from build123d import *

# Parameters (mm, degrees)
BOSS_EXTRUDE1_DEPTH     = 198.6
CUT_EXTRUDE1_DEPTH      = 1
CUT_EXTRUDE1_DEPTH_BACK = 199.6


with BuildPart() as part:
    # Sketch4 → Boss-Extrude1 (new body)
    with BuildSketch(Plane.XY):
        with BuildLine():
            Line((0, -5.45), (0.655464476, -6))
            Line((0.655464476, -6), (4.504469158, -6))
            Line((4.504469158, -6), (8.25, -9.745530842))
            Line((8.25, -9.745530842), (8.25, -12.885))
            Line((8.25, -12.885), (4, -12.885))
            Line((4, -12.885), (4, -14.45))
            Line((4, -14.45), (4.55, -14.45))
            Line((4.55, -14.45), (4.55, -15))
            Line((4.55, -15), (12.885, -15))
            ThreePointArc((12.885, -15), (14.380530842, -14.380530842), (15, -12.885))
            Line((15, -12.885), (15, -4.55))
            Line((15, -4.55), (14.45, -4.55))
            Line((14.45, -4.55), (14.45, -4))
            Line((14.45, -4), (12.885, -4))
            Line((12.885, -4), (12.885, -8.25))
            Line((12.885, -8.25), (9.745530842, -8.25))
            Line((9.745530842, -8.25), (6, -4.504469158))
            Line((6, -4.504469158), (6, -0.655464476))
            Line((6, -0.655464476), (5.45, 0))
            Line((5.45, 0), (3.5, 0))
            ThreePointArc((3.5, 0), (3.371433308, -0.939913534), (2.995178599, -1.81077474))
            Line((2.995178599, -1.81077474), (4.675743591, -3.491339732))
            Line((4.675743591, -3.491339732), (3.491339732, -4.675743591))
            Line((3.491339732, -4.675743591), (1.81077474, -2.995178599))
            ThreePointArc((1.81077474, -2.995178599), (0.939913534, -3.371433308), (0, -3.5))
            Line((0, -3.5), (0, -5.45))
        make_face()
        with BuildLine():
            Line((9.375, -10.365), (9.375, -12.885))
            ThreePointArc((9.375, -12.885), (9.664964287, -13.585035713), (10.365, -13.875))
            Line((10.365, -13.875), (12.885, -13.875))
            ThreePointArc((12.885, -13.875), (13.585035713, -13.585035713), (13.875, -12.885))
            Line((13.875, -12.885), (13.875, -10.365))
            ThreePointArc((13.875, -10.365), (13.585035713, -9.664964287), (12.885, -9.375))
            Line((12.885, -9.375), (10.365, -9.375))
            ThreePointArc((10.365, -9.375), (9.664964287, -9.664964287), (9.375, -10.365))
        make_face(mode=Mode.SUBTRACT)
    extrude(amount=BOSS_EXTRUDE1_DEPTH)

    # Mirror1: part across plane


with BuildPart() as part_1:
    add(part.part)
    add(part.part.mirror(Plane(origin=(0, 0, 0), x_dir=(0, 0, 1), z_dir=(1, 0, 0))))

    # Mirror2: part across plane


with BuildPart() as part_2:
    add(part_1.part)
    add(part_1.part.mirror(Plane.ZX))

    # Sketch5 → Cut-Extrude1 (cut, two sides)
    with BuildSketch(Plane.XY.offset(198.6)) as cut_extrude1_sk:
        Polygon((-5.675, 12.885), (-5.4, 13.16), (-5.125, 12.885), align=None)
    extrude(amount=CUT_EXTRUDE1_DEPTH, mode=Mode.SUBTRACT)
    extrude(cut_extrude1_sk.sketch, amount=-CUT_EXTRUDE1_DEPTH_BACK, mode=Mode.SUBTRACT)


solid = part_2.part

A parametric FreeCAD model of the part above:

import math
import FreeCAD as App
import Part
import Sketcher
Q = App.Units.Quantity

doc = App.newDocument("Part")
body = doc.addObject("PartDesign::Body", "Body")

# Sketch on XY plane
sketch1 = body.newObject("Sketcher::SketchObject", "Sketch")
sketch1.AttachmentSupport = (doc.getObject("XY_Plane"), [""])
sketch1.MapMode = "FlatFace"
sketch1.addGeometry([
    Part.LineSegment(App.Vector(0, -5.5, 0), App.Vector(0.7, -6, 0)),  # 0
    Part.LineSegment(App.Vector(0.7, -6, 0), App.Vector(4.5, -6, 0)),  # 1
    Part.LineSegment(App.Vector(4.5, -6, 0), App.Vector(8.2, -9.7, 0)),  # 2
    Part.LineSegment(App.Vector(8.2, -9.7, 0), App.Vector(8.2, -12.9, 0)),  # 3
    Part.LineSegment(App.Vector(8.2, -12.9, 0), App.Vector(4, -12.9, 0)),  # 4
    Part.LineSegment(App.Vector(4, -12.9, 0), App.Vector(4, -14.4, 0)),  # 5
    Part.LineSegment(App.Vector(4, -14.4, 0), App.Vector(4.5, -14.4, 0)),  # 6
    Part.LineSegment(App.Vector(4.5, -14.4, 0), App.Vector(4.5, -15, 0)),  # 7
    Part.LineSegment(App.Vector(4.5, -15, 0), App.Vector(12.9, -15, 0)),  # 8
    Part.ArcOfCircle(Part.Circle(App.Vector(12.9, -12.9, 0), App.Vector(0, 0, 1), 2.1), math.radians(-90), math.radians(0)),  # 9
    Part.LineSegment(App.Vector(15, -12.9, 0), App.Vector(15, -4.5, 0)),  # 10
    Part.LineSegment(App.Vector(15, -4.5, 0), App.Vector(14.4, -4.5, 0)),  # 11
    Part.LineSegment(App.Vector(14.4, -4.5, 0), App.Vector(14.4, -4, 0)),  # 12
    Part.LineSegment(App.Vector(14.4, -4, 0), App.Vector(12.9, -4, 0)),  # 13
    Part.LineSegment(App.Vector(12.9, -4, 0), App.Vector(12.9, -8.2, 0)),  # 14
    Part.LineSegment(App.Vector(12.9, -8.2, 0), App.Vector(9.7, -8.2, 0)),  # 15
    Part.LineSegment(App.Vector(9.7, -8.2, 0), App.Vector(6, -4.5, 0)),  # 16
    Part.LineSegment(App.Vector(6, -4.5, 0), App.Vector(6, -0.7, 0)),  # 17
    Part.LineSegment(App.Vector(6, -0.7, 0), App.Vector(5.5, 0, 0)),  # 18
    Part.LineSegment(App.Vector(5.5, 0, 0), App.Vector(3.5, 0, 0)),  # 19
    Part.ArcOfCircle(Part.Circle(App.Vector(0, 0, 0), App.Vector(0, 0, 1), 3.5), math.radians(-31), math.radians(0)),  # 20
    Part.LineSegment(App.Vector(3, -1.8, 0), App.Vector(4.7, -3.5, 0)),  # 21
    Part.LineSegment(App.Vector(4.7, -3.5, 0), App.Vector(3.5, -4.7, 0)),  # 22
    Part.LineSegment(App.Vector(3.5, -4.7, 0), App.Vector(1.8, -3, 0)),  # 23
    Part.ArcOfCircle(Part.Circle(App.Vector(0, 0, 0), App.Vector(0, 0, 1), 3.5), math.radians(-90), math.radians(-59)),  # 24
    Part.LineSegment(App.Vector(0, -3.5, 0), App.Vector(0, -5.5, 0)),  # 25
    Part.LineSegment(App.Vector(9.4, -12.9, 0), App.Vector(9.4, -10.4, 0)),  # 26
    Part.ArcOfCircle(Part.Circle(App.Vector(10.4, -10.4, 0), App.Vector(0, 0, 1), 1), math.radians(90), math.radians(180)),  # 27
    Part.LineSegment(App.Vector(10.4, -9.4, 0), App.Vector(12.9, -9.4, 0)),  # 28
    Part.ArcOfCircle(Part.Circle(App.Vector(12.9, -10.4, 0), App.Vector(0, 0, 1), 1), math.radians(0), math.radians(90)),  # 29
    Part.LineSegment(App.Vector(13.9, -10.4, 0), App.Vector(13.9, -12.9, 0)),  # 30
    Part.ArcOfCircle(Part.Circle(App.Vector(12.9, -12.9, 0), App.Vector(0, 0, 1), 1), math.radians(-90), math.radians(0)),  # 31
    Part.LineSegment(App.Vector(12.9, -13.9, 0), App.Vector(10.4, -13.9, 0)),  # 32
    Part.ArcOfCircle(Part.Circle(App.Vector(10.4, -12.9, 0), App.Vector(0, 0, 1), 1), math.radians(-180), math.radians(-90)),  # 33
], False)
sketch1.addConstraint([
    Sketcher.Constraint("Coincident", 0, 2, 1, 1),
    Sketcher.Constraint("Coincident", 1, 2, 2, 1),
    Sketcher.Constraint("Coincident", 2, 2, 3, 1),
    Sketcher.Constraint("Coincident", 3, 2, 4, 1),
    Sketcher.Constraint("Coincident", 4, 2, 5, 1),
    Sketcher.Constraint("Coincident", 5, 2, 6, 1),
    Sketcher.Constraint("Coincident", 6, 2, 7, 1),
    Sketcher.Constraint("Coincident", 7, 2, 8, 1),
    Sketcher.Constraint("Tangent", 8, 2, 9, 1),
    Sketcher.Constraint("Tangent", 9, 2, 10, 1),
    Sketcher.Constraint("Coincident", 10, 2, 11, 1),
    Sketcher.Constraint("Coincident", 11, 2, 12, 1),
    Sketcher.Constraint("Coincident", 12, 2, 13, 1),
    Sketcher.Constraint("Coincident", 13, 2, 14, 1),
    Sketcher.Constraint("Coincident", 14, 2, 15, 1),
    Sketcher.Constraint("Coincident", 15, 2, 16, 1),
    Sketcher.Constraint("Coincident", 16, 2, 17, 1),
    Sketcher.Constraint("Coincident", 17, 2, 18, 1),
    Sketcher.Constraint("Coincident", 18, 2, 19, 1),
    Sketcher.Constraint("Coincident", 19, 2, 20, 2),
    Sketcher.Constraint("Coincident", 20, 1, 21, 1),
    Sketcher.Constraint("Coincident", 21, 2, 22, 1),
    Sketcher.Constraint("Coincident", 22, 2, 23, 1),
    Sketcher.Constraint("Coincident", 23, 2, 24, 2),
    Sketcher.Constraint("Coincident", 24, 1, 25, 1),
    Sketcher.Constraint("Coincident", 25, 2, 0, 1),
    Sketcher.Constraint("Tangent", 26, 2, 27, 2),
    Sketcher.Constraint("Tangent", 27, 1, 28, 1),
    Sketcher.Constraint("Tangent", 28, 2, 29, 2),
    Sketcher.Constraint("Tangent", 29, 1, 30, 1),
    Sketcher.Constraint("Tangent", 30, 2, 31, 2),
    Sketcher.Constraint("Tangent", 31, 1, 32, 1),
    Sketcher.Constraint("Tangent", 32, 2, 33, 2),
    Sketcher.Constraint("Tangent", 33, 1, 26, 1),
    Sketcher.Constraint("Horizontal", 1),
    Sketcher.Constraint("Vertical", 3),
    Sketcher.Constraint("Horizontal", 4),
    Sketcher.Constraint("Vertical", 5),
    Sketcher.Constraint("Horizontal", 6),
    Sketcher.Constraint("Vertical", 7),
    Sketcher.Constraint("Horizontal", 8),
    Sketcher.Constraint("Vertical", 10),
    Sketcher.Constraint("Horizontal", 11),
    Sketcher.Constraint("Vertical", 12),
    Sketcher.Constraint("Horizontal", 13),
    Sketcher.Constraint("Vertical", 14),
    Sketcher.Constraint("Horizontal", 15),
    Sketcher.Constraint("Vertical", 17),
    Sketcher.Constraint("Horizontal", 19),
    Sketcher.Constraint("Vertical", 25),
    Sketcher.Constraint("Vertical", 26),
    Sketcher.Constraint("Horizontal", 28),
    Sketcher.Constraint("Vertical", 30),
    Sketcher.Constraint("Horizontal", 32),
    Sketcher.Constraint("Coincident", 20, 3, -1, 1),
    Sketcher.Constraint("Coincident", 24, 3, -1, 1),
    Sketcher.Constraint("Coincident", 31, 3, 9, 3),
    Sketcher.Constraint("Equal", 20, 24),
    Sketcher.Constraint("Equal", 27, 29),
    Sketcher.Constraint("Equal", 29, 31),
    Sketcher.Constraint("Equal", 31, 33),
    Sketcher.Constraint("PointOnObject", 18, 2, -1),
    Sketcher.Constraint("PointOnObject", 24, 1, -2),
    Sketcher.Constraint("Parallel", 2, 16),
    Sketcher.Constraint("Parallel", 16, 21),
    Sketcher.Constraint("Perpendicular", 21, 22),
    Sketcher.Constraint("Perpendicular", 22, 23),
    Sketcher.Constraint("Horizontal", 33, 3, 3, 2),
    Sketcher.Constraint("Vertical", 8, 2, 13, 2),
    Sketcher.Constraint("Equal", 6, 11),
    Sketcher.Constraint("Equal", 15, 3),
    Sketcher.Constraint("Equal", 13, 5),
    Sketcher.Constraint("Equal", 8, 10),
    Sketcher.Constraint("Equal", 7, 12),
    Sketcher.Constraint("Equal", 4, 14),
    Sketcher.Constraint("Equal", 1, 17),
    Sketcher.Constraint("Equal", 19, 25),
    Sketcher.Constraint("Equal", 32, 26),
    Sketcher.Constraint("Equal", 2, 16),
    Sketcher.Constraint("Equal", 0, 18),
    Sketcher.Constraint("Equal", 21, 23),
    Sketcher.Constraint("Radius", 20, Q("3.5 mm")),
    Sketcher.Constraint("Angle", 0, Q("-40 deg")),
    Sketcher.Constraint("Angle", 2, Q("-45 deg")),
    Sketcher.Constraint("Radius", 27, Q("0.99 mm")),
    Sketcher.Constraint("DistanceY", 0, 2, -1, 1, Q("6 mm")),
    Sketcher.Constraint("DistanceX", -1, 1, 4, 2, Q("4 mm")),
    Sketcher.Constraint("DistanceY", 7, 2, -1, 1, Q("15 mm")),
    Sketcher.Constraint("Radius", 9, Q("2.115 mm")),
    Sketcher.Constraint("DistanceX", 4, 2, 4, 1, Q("4.25 mm")),
    Sketcher.Constraint("DistanceX", 6, 1, 6, 2, Q("0.55 mm")),
    Sketcher.Constraint("DistanceX", 19, 2, 19, 1, Q("1.95 mm")),
    Sketcher.Constraint("DistanceX", 28, 1, 28, 2, Q("2.52 mm")),
    Sketcher.Constraint("Distance", 22, Q("1.675 mm")),
    Sketcher.Constraint("DistanceX", 15, 2, 15, 1, Q("3.139469 mm")),
    Sketcher.Constraint("DistanceY", 21, 2, -1, 1, Q("3.49134 mm")),
])
pad1 = body.newObject("PartDesign::Pad", "Pad")
pad1.Profile = sketch1
pad1.Length = 198.6
body2 = doc.addObject("PartDesign::Body", "Body001")
doc.recompute()

body2.BaseFeature = body
doc.recompute()

mirroring = doc.addObject("Part::Mirroring", "Mirroring")
mirroring.Source = body
mirroring.Base = App.Vector(0, 0, 0)
mirroring.Normal = App.Vector(1, 0, 0)
body3 = doc.addObject("PartDesign::Body", "Body002")
body3.BaseFeature = mirroring
boolean = body2.newObject("PartDesign::Boolean", "Boolean")
boolean.Type = "Fuse"
boolean.addObjects([body3])
doc.recompute()
body4 = doc.addObject("PartDesign::Body", "Body003")
doc.recompute()

body4.BaseFeature = body2
doc.recompute()

mirroring2 = doc.addObject("Part::Mirroring", "Mirroring001")
mirroring2.Source = body2
mirroring2.Base = App.Vector(0, 0, 0)
mirroring2.Normal = App.Vector(0, 1, 0)
body5 = doc.addObject("PartDesign::Body", "Body004")
body5.BaseFeature = mirroring2
boolean2 = body4.newObject("PartDesign::Boolean", "Boolean001")
boolean2.Type = "Fuse"
boolean2.addObjects([body5])
doc.recompute()

# Sketch on XY plane
sketch2 = body4.newObject("Sketcher::SketchObject", "Sketch001")
sketch2.AttachmentSupport = (doc.getObject("XY_Plane003"), [""])
sketch2.MapMode = "FlatFace"
sketch2.AttachmentOffset = App.Placement(App.Vector(0, 0, 198.6), App.Rotation())
sketch2.addGeometry([
    Part.LineSegment(App.Vector(-5.4, 13.16, 0), App.Vector(-5.67, 12.88, 0)),
    Part.LineSegment(App.Vector(-5.67, 12.88, 0), App.Vector(-5.12, 12.88, 0)),
    Part.LineSegment(App.Vector(-5.12, 12.88, 0), App.Vector(-5.4, 13.16, 0)),
], False)
sketch2.addConstraint([
    Sketcher.Constraint("Coincident", 0, 2, 1, 1),
    Sketcher.Constraint("Coincident", 1, 2, 2, 1),
    Sketcher.Constraint("Coincident", 2, 2, 0, 1),
    Sketcher.Constraint("Horizontal", 1),
    Sketcher.Constraint("Perpendicular", 0, 2),
    Sketcher.Constraint("Equal", 0, 2),
    Sketcher.Constraint("DistanceX", 1, 1, 1, 2, Q("0.55 mm")),
    Sketcher.Constraint("DistanceX", 2, 2, -1, 1, Q("5.4 mm")),
    Sketcher.Constraint("DistanceY", -1, 1, 2, 2, Q("13.16 mm")),
])
pocket1 = body4.newObject("PartDesign::Pocket", "Pocket")
pocket1.Profile = sketch2
pocket1.Type = "ThroughAll"
pocket1.Midplane = True
mirroring.Visibility = False
mirroring2.Visibility = False

doc.recompute()
